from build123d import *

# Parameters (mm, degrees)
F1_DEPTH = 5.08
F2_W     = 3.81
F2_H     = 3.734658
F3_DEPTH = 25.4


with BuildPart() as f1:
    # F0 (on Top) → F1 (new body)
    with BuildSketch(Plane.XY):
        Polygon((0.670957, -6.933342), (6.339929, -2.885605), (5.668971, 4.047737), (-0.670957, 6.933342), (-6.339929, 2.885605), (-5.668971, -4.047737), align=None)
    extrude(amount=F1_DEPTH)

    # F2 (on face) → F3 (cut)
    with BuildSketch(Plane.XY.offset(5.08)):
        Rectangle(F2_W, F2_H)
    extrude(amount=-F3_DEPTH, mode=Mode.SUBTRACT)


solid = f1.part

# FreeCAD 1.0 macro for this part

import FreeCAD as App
import Part
import Sketcher

V = App.Vector
Q = App.Units.Quantity

doc = App.newDocument("Part")
body = doc.addObject("PartDesign::Body", "Body")

# Sketch on XY plane
sketch1 = body.newObject("Sketcher::SketchObject", "Sketch")
sketch1.AttachmentSupport = (doc.getObject("XY_Plane"), [""])
sketch1.MapMode = "FlatFace"
sketch1.addGeometry([
    Part.LineSegment(V(1, -7, 0), V(6, -3, 0)),  # 0
    Part.LineSegment(V(6, -3, 0), V(6, 4, 0)),  # 1
    Part.LineSegment(V(6, 4, 0), V(-1, 7, 0)),  # 2
    Part.LineSegment(V(-1, 7, 0), V(-6, 3, 0)),  # 3
    Part.LineSegment(V(-6, 3, 0), V(-6, -4, 0)),  # 4
    Part.LineSegment(V(-6, -4, 0), V(1, -7, 0)),  # 5
], False)
sketch1.addConstraint([
    Sketcher.Constraint("Coincident", 0, 2, 1, 1),
    Sketcher.Constraint("Coincident", 1, 2, 2, 1),
    Sketcher.Constraint("Coincident", 2, 2, 3, 1),
    Sketcher.Constraint("Coincident", 3, 2, 4, 1),
    Sketcher.Constraint("Coincident", 4, 2, 5, 1),
    Sketcher.Constraint("Coincident", 5, 2, 0, 1),
    Sketcher.Constraint("Symmetric", 0, 2, 3, 2, -1, 1),
    Sketcher.Constraint("Symmetric", 1, 2, 4, 2, -1, 1),
    Sketcher.Constraint("Symmetric", 2, 2, 5, 2, -1, 1),
    Sketcher.Constraint("Equal", 0, 1),
    Sketcher.Constraint("Equal", 1, 2),
    Sketcher.Constraint("DistanceX", 3, 2, 1, 2, 12.0089),
    Sketcher.Constraint("Distance", 0, 6.965732),
    Sketcher.Constraint("DistanceX", -1, 1, 0, 2, 6.339929),
    Sketcher.Constraint("DistanceY", -1, 1, 2, 2, 6.933342),
])
pad1 = body.newObject("PartDesign::Pad", "Pad")
pad1.Profile = sketch1
pad1.Length = Q("0.2 in")

# Sketch on XY plane
sketch2 = body.newObject("Sketcher::SketchObject", "Sketch001")
sketch2.AttachmentSupport = (doc.getObject("XY_Plane"), [""])
sketch2.MapMode = "FlatFace"
sketch2.AttachmentOffset = App.Placement(V(0, 0, 0.2 * 25.4), App.Rotation())
sketch2.addGeometry([
    Part.LineSegment(V(-1.9, 1.9, 0), V(-1.9, -1.9, 0)),
    Part.LineSegment(V(-1.9, -1.9, 0), V(1.9, -1.9, 0)),
    Part.LineSegment(V(1.9, -1.9, 0), V(1.9, 1.9, 0)),
    Part.LineSegment(V(1.9, 1.9, 0), V(-1.9, 1.9, 0)),
], False)
sketch2.addConstraint([
    Sketcher.Constraint("Coincident", 0, 2, 1, 1),
    Sketcher.Constraint("Coincident", 1, 2, 2, 1),
    Sketcher.Constraint("Coincident", 2, 2, 3, 1),
    Sketcher.Constraint("Coincident", 3, 2, 0, 1),
    Sketcher.Constraint("Vertical", 0),
    Sketcher.Constraint("Horizontal", 1),
    Sketcher.Constraint("Vertical", 2),
    Sketcher.Constraint("Horizontal", 3),
    Sketcher.Constraint("Symmetric", 0, 2, 2, 2, -1, 1),
    Sketcher.Constraint("DistanceX", 1, 1, 1, 2, Q("0.15 in")),
    Sketcher.Constraint("DistanceY", 0, 2, 0, 1, 3.734658),
])
pocket1 = body.newObject("PartDesign::Pocket", "Pocket")
pocket1.Profile = sketch2
pocket1.Length = Q("1 in")

doc.recompute()
